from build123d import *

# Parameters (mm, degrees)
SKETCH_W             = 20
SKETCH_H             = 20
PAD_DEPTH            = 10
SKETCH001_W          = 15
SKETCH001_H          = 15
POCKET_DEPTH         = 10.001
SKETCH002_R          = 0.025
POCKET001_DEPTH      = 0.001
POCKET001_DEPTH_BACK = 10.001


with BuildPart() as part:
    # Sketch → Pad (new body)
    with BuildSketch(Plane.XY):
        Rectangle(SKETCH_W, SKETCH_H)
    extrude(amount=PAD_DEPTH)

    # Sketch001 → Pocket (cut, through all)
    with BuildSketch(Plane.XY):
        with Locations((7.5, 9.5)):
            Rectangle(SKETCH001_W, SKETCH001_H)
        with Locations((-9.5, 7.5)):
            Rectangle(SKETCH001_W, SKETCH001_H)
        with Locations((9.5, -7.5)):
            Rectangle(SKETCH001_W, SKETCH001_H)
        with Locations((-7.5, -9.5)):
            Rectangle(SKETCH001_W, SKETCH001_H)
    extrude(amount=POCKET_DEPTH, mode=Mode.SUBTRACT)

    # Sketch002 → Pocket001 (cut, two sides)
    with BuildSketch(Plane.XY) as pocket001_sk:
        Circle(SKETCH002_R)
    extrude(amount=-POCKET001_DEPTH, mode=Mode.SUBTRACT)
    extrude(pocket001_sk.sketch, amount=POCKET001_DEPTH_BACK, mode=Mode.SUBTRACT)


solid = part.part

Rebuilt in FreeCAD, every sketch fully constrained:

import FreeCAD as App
import Part
import Sketcher
Q = App.Units.Quantity

doc = App.newDocument("Part")
body = doc.addObject("PartDesign::Body", "Body")

# Sketch on XY plane
sketch1 = body.newObject("Sketcher::SketchObject", "Sketch")
sketch1.AttachmentSupport = (doc.getObject("XY_Plane"), [""])
sketch1.MapMode = "FlatFace"
sketch1.addGeometry(Part.LineSegment(App.Vector(-10, 10, 0), App.Vector(-10, -10, 0)), False)
sketch1.addGeometry(Part.LineSegment(App.Vector(-10, -10, 0), App.Vector(10, -10, 0)), False)
sketch1.addGeometry(Part.LineSegment(App.Vector(10, -10, 0), App.Vector(10, 10, 0)), False)
sketch1.addGeometry(Part.LineSegment(App.Vector(10, 10, 0), App.Vector(-10, 10, 0)), False)
sketch1.addConstraint(Sketcher.Constraint("Coincident", 0, 2, 1, 1))
sketch1.addConstraint(Sketcher.Constraint("Coincident", 1, 2, 2, 1))
sketch1.addConstraint(Sketcher.Constraint("Coincident", 2, 2, 3, 1))
sketch1.addConstraint(Sketcher.Constraint("Coincident", 3, 2, 0, 1))
sketch1.addConstraint(Sketcher.Constraint("Vertical", 0))
sketch1.addConstraint(Sketcher.Constraint("Horizontal", 1))
sketch1.addConstraint(Sketcher.Constraint("Vertical", 2))
sketch1.addConstraint(Sketcher.Constraint("Horizontal", 3))
sketch1.addConstraint(Sketcher.Constraint("Symmetric", 0, 2, 2, 2, -1, 1))
sketch1.addConstraint(Sketcher.Constraint("Equal", 3, 0))
sketch1.addConstraint(Sketcher.Constraint("DistanceX", 1, 1, 1, 2, Q("20 mm")))
pad1 = body.newObject("PartDesign::Pad", "Pad")
pad1.Profile = sketch1
pad1.Length = 10

# Sketch on XY plane
sketch2 = body.newObject("Sketcher::SketchObject", "Sketch001")
sketch2.AttachmentSupport = (doc.getObject("XY_Plane"), [""])
sketch2.MapMode = "FlatFace"
sketch2.addGeometry(Part.LineSegment(App.Vector(0, 17, 0), App.Vector(0, 2, 0)), False)
sketch2.addGeometry(Part.LineSegment(App.Vector(0, 2, 0), App.Vector(15, 2, 0)), False)
sketch2.addGeometry(Part.LineSegment(App.Vector(15, 2, 0), App.Vector(15, 17, 0)), False)
sketch2.addGeometry(Part.LineSegment(App.Vector(15, 17, 0), App.Vector(0, 17, 0)), False)
sketch2.addGeometry(Part.LineSegment(App.Vector(-17, 15, 0), App.Vector(-17, 0, 0)), False)
sketch2.addGeometry(Part.LineSegment(App.Vector(-17, 0, 0), App.Vector(-2, 0, 0)), False)
sketch2.addGeometry(Part.LineSegment(App.Vector(-2, 0, 0), App.Vector(-2, 15, 0)), False)
sketch2.addGeometry(Part.LineSegment(App.Vector(-2, 15, 0), App.Vector(-17, 15, 0)), False)
sketch2.addGeometry(Part.LineSegment(App.Vector(2, 0, 0), App.Vector(2, -15, 0)), False)
sketch2.addGeometry(Part.LineSegment(App.Vector(2, -15, 0), App.Vector(17, -15, 0)), False)
sketch2.addGeometry(Part.LineSegment(App.Vector(17, -15, 0), App.Vector(17, 0, 0)), False)
sketch2.addGeometry(Part.LineSegment(App.Vector(17, 0, 0), App.Vector(2, 0, 0)), False)
sketch2.addGeometry(Part.LineSegment(App.Vector(-15, -2, 0), App.Vector(-15, -17, 0)), False)
sketch2.addGeometry(Part.LineSegment(App.Vector(-15, -17, 0), App.Vector(0, -17, 0)), False)
sketch2.addGeometry(Part.LineSegment(App.Vector(0, -17, 0), App.Vector(0, -2, 0)), False)
sketch2.addGeometry(Part.LineSegment(App.Vector(0, -2, 0), App.Vector(-15, -2, 0)), False)
sketch2.addConstraint(Sketcher.Constraint("Coincident", 0, 2, 1, 1))
sketch2.addConstraint(Sketcher.Constraint("Coincident", 1, 2, 2, 1))
sketch2.addConstraint(Sketcher.Constraint("Coincident", 2, 2, 3, 1))
sketch2.addConstraint(Sketcher.Constraint("Coincident", 3, 2, 0, 1))
sketch2.addConstraint(Sketcher.Constraint("Coincident", 4, 2, 5, 1))
sketch2.addConstraint(Sketcher.Constraint("Coincident", 5, 2, 6, 1))
sketch2.addConstraint(Sketcher.Constraint("Coincident", 6, 2, 7, 1))
sketch2.addConstraint(Sketcher.Constraint("Coincident", 7, 2, 4, 1))
sketch2.addConstraint(Sketcher.Constraint("Coincident", 8, 2, 9, 1))
sketch2.addConstraint(Sketcher.Constraint("Coincident", 9, 2, 10, 1))
sketch2.addConstraint(Sketcher.Constraint("Coincident", 10, 2, 11, 1))
sketch2.addConstraint(Sketcher.Constraint("Coincident", 11, 2, 8, 1))
sketch2.addConstraint(Sketcher.Constraint("Coincident", 12, 2, 13, 1))
sketch2.addConstraint(Sketcher.Constraint("Coincident", 13, 2, 14, 1))
sketch2.addConstraint(Sketcher.Constraint("Coincident", 14, 2, 15, 1))
sketch2.addConstraint(Sketcher.Constraint("Coincident", 15, 2, 12, 1))
sketch2.addConstraint(Sketcher.Constraint("Vertical", 0))
sketch2.addConstraint(Sketcher.Constraint("Horizontal", 1))
sketch2.addConstraint(Sketcher.Constraint("Vertical", 2))
sketch2.addConstraint(Sketcher.Constraint("Horizontal", 3))
sketch2.addConstraint(Sketcher.Constraint("Vertical", 4))
sketch2.addConstraint(Sketcher.Constraint("Horizontal", 5))
sketch2.addConstraint(Sketcher.Constraint("Vertical", 6))
sketch2.addConstraint(Sketcher.Constraint("Horizontal", 7))
sketch2.addConstraint(Sketcher.Constraint("Vertical", 8))
sketch2.addConstraint(Sketcher.Constraint("Horizontal", 9))
sketch2.addConstraint(Sketcher.Constraint("Vertical", 10))
sketch2.addConstraint(Sketcher.Constraint("Horizontal", 11))
sketch2.addConstraint(Sketcher.Constraint("Vertical", 12))
sketch2.addConstraint(Sketcher.Constraint("Horizontal", 13))
sketch2.addConstraint(Sketcher.Constraint("Vertical", 14))
sketch2.addConstraint(Sketcher.Constraint("Horizontal", 15))
sketch2.addConstraint(Sketcher.Constraint("Symmetric", 6, 2, 8, 2, -1, 1))
sketch2.addConstraint(Sketcher.Constraint("Symmetric", 4, 2, 10, 2, -1, 1))
sketch2.addConstraint(Sketcher.Constraint("Symmetric", 2, 2, 12, 2, -1, 1))
sketch2.addConstraint(Sketcher.Constraint("Symmetric", 0, 2, 14, 2, -1, 1))
sketch2.addConstraint(Sketcher.Constraint("PointOnObject", 0, 2, -2))
sketch2.addConstraint(Sketcher.Constraint("PointOnObject", 4, 2, -1))
sketch2.addConstraint(Sketcher.Constraint("Equal", 3, 5))
sketch2.addConstraint(Sketcher.Constraint("Equal", 15, 0))
sketch2.addConstraint(Sketcher.Constraint("Equal", 2, 4))
sketch2.addConstraint(Sketcher.Constraint("DistanceX", 1, 1, 1, 2, Q("15 mm")))
sketch2.addConstraint(Sketcher.Constraint("DistanceY", -1, 1, 0, 2, Q("2 mm")))
sketch2.addConstraint(Sketcher.Constraint("DistanceX", 4, 2, -1, 1, Q("17 mm")))
pocket1 = body.newObject("PartDesign::Pocket", "Pocket")
pocket1.Profile = sketch2
pocket1.Type = "ThroughAll"
pocket1.Reversed = True

# Sketch on XY plane
sketch3 = body.newObject("Sketcher::SketchObject", "Sketch002")
sketch3.AttachmentSupport = (doc.getObject("XY_Plane"), [""])
sketch3.MapMode = "FlatFace"
sketch3.addGeometry(Part.Circle(App.Vector(0, 0, 0), App.Vector(0, 0, 1), 0.025), False)
sketch3.addConstraint(Sketcher.Constraint("Coincident", 0, 3, -1, 1))
sketch3.addConstraint(Sketcher.Constraint("Diameter", 0, Q("0.05 mm")))
pocket2 = body.newObject("PartDesign::Pocket", "Pocket001")
pocket2.Profile = sketch3
pocket2.Type = "ThroughAll"
pocket2.Midplane = True

doc.recompute()
